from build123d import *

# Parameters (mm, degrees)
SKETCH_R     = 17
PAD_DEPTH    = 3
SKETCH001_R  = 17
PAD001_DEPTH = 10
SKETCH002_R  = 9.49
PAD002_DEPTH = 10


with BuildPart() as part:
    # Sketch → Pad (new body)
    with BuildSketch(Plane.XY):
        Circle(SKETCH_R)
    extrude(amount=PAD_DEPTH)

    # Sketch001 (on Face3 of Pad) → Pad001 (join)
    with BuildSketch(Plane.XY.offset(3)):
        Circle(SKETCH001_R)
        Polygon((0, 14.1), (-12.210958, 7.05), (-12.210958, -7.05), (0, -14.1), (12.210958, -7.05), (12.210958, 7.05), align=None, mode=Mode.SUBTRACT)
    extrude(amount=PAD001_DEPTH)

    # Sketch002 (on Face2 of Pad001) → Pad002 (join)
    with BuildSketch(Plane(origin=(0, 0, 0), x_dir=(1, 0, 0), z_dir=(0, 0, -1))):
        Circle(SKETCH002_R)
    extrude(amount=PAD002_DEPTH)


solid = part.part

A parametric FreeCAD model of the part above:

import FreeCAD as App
import Part
import Sketcher
Q = App.Units.Quantity

doc = App.newDocument("Part")
body = doc.addObject("PartDesign::Body", "Body")

# Sketch on XY plane
sketch1 = body.newObject("Sketcher::SketchObject", "Sketch")
sketch1.AttachmentSupport = (doc.getObject("XY_Plane"), [""])
sketch1.MapMode = "FlatFace"
sketch1.addGeometry(Part.Circle(App.Vector(0, 0, 0), App.Vector(0, 0, 1), 17), False)
sketch1.addConstraint([
    Sketcher.Constraint("Coincident", 0, 3, -1, 1),
    Sketcher.Constraint("Diameter", 0, Q("34 mm")),
])
pad1 = body.newObject("PartDesign::Pad", "Pad")
pad1.Profile = sketch1
pad1.Length = 3

# Sketch on XY plane
sketch2 = body.newObject("Sketcher::SketchObject", "Sketch001")
sketch2.AttachmentSupport = (doc.getObject("XY_Plane"), [""])
sketch2.MapMode = "FlatFace"
sketch2.AttachmentOffset = App.Placement(App.Vector(0, 0, 3), App.Rotation())
sketch2.addGeometry([
    Part.Circle(App.Vector(0, 0, 0), App.Vector(0, 0, 1), 17),  # 0
    Part.LineSegment(App.Vector(-12, 7, 0), App.Vector(0, 14, 0)),  # 1
    Part.LineSegment(App.Vector(0, 14, 0), App.Vector(12, 7, 0)),  # 2
    Part.LineSegment(App.Vector(12, 7, 0), App.Vector(12, -7, 0)),  # 3
    Part.LineSegment(App.Vector(12, -7, 0), App.Vector(0, -14, 0)),  # 4
    Part.LineSegment(App.Vector(0, -14, 0), App.Vector(-12, -7, 0)),  # 5
    Part.LineSegment(App.Vector(-12, -7, 0), App.Vector(-12, 7, 0)),  # 6
], False)
sketch2.addConstraint([
    Sketcher.Constraint("Coincident", 1, 2, 2, 1),
    Sketcher.Constraint("Coincident", 2, 2, 3, 1),
    Sketcher.Constraint("Coincident", 3, 2, 4, 1),
    Sketcher.Constraint("Coincident", 4, 2, 5, 1),
    Sketcher.Constraint("Coincident", 5, 2, 6, 1),
    Sketcher.Constraint("Coincident", 6, 2, 1, 1),
    Sketcher.Constraint("Vertical", 3),
    Sketcher.Constraint("Vertical", 6),
    Sketcher.Constraint("Coincident", 0, 3, -1, 1),
    Sketcher.Constraint("Symmetric", 1, 2, 4, 2, -1, 1),
    Sketcher.Constraint("Symmetric", 2, 2, 5, 2, -1, 1),
    Sketcher.Constraint("PointOnObject", 1, 2, -2),
    Sketcher.Constraint("Parallel", 1, 4),
    Sketcher.Constraint("Horizontal", 3, 2, 5, 2),
    Sketcher.Constraint("Diameter", 0, Q("34 mm")),
    Sketcher.Constraint("Angle", 1, Q("30 deg")),
    Sketcher.Constraint("DistanceY", 3, 2, 3, 1, Q("14.1 mm")),
    Sketcher.Constraint("Distance", 1, Q("14.1 mm")),
])
pad2 = body.newObject("PartDesign::Pad", "Pad001")
pad2.Profile = sketch2
pad2.Length = 10

# Sketch on XY plane
sketch3 = body.newObject("Sketcher::SketchObject", "Sketch002")
sketch3.AttachmentSupport = (doc.getObject("XY_Plane"), [""])
sketch3.MapMode = "FlatFace"
sketch3.addGeometry(Part.Circle(App.Vector(0, 0, 0), App.Vector(0, 0, 1), 9), False)
sketch3.addConstraint([
    Sketcher.Constraint("Coincident", 0, 3, -1, 1),
    Sketcher.Constraint("Diameter", 0, Q("18.98 mm")),
])
pad3 = body.newObject("PartDesign::Pad", "Pad002")
pad3.Profile = sketch3
pad3.Length = 10
pad3.Reversed = True

doc.recompute()
